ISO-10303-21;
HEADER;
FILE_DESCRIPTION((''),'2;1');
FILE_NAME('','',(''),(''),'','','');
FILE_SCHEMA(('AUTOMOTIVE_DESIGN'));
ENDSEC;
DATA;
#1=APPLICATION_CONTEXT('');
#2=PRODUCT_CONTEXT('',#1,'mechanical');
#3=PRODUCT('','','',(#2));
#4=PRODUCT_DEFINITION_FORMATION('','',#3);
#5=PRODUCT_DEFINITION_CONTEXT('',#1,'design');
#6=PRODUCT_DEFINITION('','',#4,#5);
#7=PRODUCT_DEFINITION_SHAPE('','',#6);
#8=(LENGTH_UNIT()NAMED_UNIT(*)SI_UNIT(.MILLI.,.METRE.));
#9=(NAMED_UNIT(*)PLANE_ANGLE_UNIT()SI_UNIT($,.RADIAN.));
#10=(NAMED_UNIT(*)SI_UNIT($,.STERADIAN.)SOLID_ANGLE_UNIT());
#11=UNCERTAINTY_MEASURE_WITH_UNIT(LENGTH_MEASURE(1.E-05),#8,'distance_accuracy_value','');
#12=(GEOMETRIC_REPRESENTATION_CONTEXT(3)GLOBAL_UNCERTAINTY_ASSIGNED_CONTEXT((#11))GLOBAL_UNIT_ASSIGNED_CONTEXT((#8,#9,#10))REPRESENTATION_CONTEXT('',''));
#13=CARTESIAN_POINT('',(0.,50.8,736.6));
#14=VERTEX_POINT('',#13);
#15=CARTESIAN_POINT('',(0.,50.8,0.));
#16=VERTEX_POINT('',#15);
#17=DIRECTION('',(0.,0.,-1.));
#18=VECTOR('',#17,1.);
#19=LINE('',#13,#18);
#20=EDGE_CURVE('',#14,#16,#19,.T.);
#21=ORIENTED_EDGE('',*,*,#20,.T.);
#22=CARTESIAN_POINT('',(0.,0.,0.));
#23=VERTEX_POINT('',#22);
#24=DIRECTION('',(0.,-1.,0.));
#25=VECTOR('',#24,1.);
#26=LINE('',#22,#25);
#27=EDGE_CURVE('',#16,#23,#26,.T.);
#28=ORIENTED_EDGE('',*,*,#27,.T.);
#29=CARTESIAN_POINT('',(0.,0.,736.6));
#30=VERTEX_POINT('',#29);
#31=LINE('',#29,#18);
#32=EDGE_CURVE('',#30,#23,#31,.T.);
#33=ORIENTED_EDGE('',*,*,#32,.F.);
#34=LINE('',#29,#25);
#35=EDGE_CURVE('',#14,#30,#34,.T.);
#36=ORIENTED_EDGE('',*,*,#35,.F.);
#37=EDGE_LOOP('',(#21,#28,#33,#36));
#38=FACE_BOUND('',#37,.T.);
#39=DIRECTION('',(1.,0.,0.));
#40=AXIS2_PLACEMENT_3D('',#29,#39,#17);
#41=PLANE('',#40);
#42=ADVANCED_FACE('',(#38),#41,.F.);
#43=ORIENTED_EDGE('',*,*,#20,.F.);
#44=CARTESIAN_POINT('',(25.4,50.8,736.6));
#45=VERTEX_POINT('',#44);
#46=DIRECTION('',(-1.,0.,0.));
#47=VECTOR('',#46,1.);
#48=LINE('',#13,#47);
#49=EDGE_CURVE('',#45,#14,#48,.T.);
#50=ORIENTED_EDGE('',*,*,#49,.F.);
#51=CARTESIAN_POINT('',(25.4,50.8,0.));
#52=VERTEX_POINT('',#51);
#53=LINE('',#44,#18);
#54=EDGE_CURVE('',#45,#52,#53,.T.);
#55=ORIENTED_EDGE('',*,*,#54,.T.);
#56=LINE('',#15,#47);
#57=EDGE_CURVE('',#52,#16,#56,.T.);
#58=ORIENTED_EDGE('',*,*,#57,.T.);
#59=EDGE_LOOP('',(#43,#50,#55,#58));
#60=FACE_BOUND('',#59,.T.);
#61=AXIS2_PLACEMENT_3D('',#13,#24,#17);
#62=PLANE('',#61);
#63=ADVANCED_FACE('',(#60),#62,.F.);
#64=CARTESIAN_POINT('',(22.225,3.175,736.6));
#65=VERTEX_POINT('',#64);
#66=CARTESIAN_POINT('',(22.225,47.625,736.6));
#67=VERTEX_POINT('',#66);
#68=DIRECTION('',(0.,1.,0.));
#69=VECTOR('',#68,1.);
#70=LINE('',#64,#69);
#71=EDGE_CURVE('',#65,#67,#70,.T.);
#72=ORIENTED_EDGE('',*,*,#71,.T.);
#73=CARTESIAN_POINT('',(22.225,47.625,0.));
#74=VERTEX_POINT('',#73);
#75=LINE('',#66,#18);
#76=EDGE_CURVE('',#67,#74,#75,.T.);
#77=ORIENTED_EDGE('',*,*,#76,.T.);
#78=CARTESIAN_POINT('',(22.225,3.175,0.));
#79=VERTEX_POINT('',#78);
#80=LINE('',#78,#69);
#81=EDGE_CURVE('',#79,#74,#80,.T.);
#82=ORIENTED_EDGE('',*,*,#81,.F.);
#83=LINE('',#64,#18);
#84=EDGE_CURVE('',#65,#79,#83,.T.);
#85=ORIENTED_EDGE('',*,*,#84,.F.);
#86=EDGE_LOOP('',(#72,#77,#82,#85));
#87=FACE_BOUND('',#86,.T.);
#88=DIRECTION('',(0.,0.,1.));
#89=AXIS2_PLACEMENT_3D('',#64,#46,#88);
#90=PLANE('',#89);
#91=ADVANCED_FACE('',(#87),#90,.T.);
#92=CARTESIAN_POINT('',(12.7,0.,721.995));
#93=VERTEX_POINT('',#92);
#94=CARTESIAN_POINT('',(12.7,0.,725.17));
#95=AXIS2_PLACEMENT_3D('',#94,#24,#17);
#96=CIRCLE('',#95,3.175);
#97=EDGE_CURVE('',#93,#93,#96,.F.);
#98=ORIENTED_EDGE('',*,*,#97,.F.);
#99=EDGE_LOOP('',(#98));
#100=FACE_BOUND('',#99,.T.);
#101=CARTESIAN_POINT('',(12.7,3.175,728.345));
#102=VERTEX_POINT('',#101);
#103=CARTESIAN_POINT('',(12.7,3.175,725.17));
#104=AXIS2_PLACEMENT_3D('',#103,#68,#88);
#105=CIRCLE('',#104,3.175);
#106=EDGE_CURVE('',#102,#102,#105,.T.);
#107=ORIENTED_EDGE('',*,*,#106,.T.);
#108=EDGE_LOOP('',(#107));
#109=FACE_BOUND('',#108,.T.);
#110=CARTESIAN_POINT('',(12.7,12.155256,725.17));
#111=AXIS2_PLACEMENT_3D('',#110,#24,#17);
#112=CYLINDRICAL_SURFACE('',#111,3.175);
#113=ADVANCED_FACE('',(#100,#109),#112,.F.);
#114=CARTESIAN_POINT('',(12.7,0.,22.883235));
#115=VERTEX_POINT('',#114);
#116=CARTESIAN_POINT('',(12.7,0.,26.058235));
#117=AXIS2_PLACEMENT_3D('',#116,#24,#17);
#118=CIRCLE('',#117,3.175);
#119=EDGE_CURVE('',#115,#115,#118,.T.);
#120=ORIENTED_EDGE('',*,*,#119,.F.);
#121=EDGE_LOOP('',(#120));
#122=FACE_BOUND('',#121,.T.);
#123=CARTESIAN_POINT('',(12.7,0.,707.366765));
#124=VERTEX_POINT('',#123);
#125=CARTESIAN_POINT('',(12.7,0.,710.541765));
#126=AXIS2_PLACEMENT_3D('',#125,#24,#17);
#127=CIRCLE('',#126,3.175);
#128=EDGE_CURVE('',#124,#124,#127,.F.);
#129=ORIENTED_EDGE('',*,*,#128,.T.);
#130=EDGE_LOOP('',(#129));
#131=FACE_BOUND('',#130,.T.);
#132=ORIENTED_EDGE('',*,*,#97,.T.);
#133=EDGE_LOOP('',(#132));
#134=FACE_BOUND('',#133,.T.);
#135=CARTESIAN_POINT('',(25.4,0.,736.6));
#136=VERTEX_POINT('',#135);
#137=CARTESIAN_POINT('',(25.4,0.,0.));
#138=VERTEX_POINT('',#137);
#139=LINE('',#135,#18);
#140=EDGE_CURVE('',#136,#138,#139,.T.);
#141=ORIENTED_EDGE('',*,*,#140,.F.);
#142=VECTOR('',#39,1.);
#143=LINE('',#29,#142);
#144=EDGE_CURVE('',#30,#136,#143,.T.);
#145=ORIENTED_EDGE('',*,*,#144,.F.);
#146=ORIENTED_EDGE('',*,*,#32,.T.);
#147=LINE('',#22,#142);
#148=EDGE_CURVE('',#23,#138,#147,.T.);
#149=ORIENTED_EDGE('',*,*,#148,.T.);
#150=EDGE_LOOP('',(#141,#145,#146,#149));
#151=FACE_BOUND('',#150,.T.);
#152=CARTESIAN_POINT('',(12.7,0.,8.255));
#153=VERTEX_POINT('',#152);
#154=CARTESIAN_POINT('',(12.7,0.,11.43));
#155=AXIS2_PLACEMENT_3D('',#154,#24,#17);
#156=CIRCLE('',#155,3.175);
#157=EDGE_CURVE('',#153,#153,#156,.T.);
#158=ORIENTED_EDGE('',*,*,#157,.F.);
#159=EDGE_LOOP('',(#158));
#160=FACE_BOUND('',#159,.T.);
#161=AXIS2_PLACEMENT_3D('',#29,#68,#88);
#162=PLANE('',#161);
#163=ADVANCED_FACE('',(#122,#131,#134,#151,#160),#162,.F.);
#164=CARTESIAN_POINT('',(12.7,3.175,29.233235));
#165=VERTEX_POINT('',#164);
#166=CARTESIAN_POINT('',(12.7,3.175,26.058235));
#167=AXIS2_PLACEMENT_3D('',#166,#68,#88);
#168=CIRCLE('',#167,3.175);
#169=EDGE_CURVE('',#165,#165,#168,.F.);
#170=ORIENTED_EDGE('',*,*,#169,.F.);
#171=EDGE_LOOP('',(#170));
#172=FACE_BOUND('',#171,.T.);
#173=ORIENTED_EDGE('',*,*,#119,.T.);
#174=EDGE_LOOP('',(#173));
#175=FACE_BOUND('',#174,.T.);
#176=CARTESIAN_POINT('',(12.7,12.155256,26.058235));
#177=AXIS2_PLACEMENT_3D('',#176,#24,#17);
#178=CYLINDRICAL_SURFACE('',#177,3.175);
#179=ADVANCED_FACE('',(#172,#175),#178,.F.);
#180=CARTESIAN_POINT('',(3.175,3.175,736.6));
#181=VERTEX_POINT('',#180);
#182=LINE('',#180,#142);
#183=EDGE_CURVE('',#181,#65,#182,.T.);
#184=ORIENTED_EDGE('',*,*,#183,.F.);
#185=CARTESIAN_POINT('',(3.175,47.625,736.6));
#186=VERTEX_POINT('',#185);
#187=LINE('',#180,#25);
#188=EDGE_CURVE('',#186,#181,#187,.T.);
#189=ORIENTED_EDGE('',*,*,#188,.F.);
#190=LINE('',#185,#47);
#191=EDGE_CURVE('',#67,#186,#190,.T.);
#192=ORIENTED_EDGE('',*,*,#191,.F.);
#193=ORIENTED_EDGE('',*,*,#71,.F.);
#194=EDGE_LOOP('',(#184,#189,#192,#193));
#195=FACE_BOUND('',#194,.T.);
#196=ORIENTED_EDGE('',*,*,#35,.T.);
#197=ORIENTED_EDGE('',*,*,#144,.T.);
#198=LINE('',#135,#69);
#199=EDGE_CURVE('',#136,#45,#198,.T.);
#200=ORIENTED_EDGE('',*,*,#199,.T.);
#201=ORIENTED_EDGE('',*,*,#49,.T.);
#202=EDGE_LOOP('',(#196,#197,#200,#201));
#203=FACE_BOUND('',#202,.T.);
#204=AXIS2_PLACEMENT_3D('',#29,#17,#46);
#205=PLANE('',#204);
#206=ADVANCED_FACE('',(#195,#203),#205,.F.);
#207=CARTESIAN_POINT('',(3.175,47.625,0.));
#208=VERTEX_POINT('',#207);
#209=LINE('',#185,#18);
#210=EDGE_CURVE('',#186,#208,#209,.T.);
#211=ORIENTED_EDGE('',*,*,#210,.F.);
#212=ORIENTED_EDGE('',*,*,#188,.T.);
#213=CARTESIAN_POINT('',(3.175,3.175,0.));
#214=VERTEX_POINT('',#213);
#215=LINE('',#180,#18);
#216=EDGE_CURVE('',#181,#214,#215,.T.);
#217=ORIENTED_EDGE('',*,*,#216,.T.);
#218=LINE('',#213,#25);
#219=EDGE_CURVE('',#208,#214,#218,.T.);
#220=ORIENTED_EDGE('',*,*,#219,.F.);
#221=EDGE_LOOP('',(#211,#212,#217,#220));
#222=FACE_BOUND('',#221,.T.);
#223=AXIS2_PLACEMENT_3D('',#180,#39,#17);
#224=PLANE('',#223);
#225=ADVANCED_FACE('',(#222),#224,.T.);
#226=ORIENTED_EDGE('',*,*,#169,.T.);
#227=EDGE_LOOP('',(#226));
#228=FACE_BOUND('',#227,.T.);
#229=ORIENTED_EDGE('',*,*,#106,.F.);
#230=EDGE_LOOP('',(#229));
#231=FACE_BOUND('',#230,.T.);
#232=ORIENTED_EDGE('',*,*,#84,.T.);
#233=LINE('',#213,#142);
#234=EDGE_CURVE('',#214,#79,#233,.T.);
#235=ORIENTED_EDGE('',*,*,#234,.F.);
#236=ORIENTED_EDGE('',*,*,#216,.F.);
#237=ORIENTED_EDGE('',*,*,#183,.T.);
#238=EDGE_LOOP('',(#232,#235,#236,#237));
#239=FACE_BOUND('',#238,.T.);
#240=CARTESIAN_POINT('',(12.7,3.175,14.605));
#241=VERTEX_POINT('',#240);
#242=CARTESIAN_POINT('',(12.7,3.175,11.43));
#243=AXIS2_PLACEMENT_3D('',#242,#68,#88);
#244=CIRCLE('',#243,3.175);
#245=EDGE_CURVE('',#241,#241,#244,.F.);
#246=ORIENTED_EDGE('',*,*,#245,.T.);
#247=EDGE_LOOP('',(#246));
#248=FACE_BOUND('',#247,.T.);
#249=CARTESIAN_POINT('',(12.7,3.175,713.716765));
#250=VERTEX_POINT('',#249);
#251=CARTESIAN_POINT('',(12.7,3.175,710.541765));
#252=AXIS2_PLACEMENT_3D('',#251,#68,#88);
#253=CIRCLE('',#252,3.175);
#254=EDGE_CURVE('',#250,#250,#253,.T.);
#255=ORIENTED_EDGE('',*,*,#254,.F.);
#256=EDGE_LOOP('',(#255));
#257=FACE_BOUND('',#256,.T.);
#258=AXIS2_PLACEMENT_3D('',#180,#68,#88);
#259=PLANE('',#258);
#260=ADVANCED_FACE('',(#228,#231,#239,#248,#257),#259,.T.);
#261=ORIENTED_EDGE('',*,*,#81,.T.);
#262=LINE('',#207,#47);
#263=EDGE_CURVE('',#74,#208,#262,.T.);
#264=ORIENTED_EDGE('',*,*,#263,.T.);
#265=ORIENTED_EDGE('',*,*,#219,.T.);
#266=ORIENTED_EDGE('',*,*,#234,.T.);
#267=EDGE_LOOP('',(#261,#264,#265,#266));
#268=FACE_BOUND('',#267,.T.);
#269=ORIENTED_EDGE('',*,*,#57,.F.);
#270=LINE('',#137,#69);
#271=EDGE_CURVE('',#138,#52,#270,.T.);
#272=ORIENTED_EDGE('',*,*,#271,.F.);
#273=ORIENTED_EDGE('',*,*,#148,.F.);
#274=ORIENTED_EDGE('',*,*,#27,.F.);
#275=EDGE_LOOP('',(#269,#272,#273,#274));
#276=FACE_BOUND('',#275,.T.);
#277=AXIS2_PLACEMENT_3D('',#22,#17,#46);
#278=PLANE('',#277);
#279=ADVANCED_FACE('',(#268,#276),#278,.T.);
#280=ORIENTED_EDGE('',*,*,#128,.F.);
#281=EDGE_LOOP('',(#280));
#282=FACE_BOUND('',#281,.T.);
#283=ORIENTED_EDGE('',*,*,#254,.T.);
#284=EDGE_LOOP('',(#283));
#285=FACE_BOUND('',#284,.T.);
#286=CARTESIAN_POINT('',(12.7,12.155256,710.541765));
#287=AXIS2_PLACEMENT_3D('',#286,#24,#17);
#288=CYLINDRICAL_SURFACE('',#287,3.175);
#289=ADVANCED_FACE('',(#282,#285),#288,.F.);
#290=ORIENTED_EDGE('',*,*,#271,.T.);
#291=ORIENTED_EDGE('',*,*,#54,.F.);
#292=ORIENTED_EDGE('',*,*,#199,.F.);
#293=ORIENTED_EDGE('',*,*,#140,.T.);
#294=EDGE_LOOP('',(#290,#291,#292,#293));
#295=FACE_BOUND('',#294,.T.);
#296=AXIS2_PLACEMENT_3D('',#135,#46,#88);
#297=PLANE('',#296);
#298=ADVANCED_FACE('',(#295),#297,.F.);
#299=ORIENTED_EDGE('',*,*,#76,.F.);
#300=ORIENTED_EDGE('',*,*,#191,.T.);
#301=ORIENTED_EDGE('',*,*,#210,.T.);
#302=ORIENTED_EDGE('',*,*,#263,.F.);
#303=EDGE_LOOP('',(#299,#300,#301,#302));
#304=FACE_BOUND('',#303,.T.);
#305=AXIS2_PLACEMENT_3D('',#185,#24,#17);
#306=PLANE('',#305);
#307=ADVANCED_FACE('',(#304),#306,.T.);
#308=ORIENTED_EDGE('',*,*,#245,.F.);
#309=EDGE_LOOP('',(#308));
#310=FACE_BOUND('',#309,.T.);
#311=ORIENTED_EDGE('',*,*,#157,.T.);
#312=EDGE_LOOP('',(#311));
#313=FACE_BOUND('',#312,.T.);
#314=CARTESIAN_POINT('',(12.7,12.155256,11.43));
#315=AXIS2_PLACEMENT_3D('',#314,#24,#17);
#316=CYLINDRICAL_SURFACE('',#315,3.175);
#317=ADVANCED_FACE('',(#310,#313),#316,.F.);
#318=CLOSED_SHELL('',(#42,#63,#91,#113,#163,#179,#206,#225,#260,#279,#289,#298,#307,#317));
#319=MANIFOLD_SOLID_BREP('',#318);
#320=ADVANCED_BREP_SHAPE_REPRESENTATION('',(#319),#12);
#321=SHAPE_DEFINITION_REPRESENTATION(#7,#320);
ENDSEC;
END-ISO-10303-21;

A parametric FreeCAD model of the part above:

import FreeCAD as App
import Part
import Sketcher
from FreeCAD import Vector
Q = App.Units.Quantity


def add_polygon(sketch, points):
    """Adds a closed chain of lines whose ends are joined by coincident constraints."""
    first, n = sketch.GeometryCount, len(points)
    for a, b in zip(points, points[1:] + points[:1]):
        sketch.addGeometry(Part.LineSegment(App.Vector(*a, 0), App.Vector(*b, 0)), False)
    for i in range(n):
        sketch.addConstraint(Sketcher.Constraint("Coincident", first + i, 2, first + (i + 1) % n, 1))

doc = App.newDocument("Part")
body = doc.addObject("PartDesign::Body", "Body")

sketch1 = body.newObject("Sketcher::SketchObject", "Sketch")
sketch1.AttachmentSupport = (doc.getObject("XY_Plane"), [""])
sketch1.MapMode = "FlatFace"
add_polygon(sketch1, [(0, 50.8), (0, 0), (25.4, 0), (25.4, 50.8)])
add_polygon(sketch1, [(22.225, 3.175), (3.175, 3.175), (3.175, 47.625), (22.225, 47.625)])
sketch1.addConstraint(Sketcher.Constraint("Vertical", 0))
sketch1.addConstraint(Sketcher.Constraint("Horizontal", 1))
sketch1.addConstraint(Sketcher.Constraint("Vertical", 2))
sketch1.addConstraint(Sketcher.Constraint("Horizontal", 3))
sketch1.addConstraint(Sketcher.Constraint("Horizontal", 4))
sketch1.addConstraint(Sketcher.Constraint("Vertical", 5))
sketch1.addConstraint(Sketcher.Constraint("Horizontal", 6))
sketch1.addConstraint(Sketcher.Constraint("Vertical", 7))
sketch1.addConstraint(Sketcher.Constraint("Coincident", 0, 2, -1, 1))
sketch1.addConstraint(Sketcher.Constraint("DistanceX", 1, 1, 1, 2, Q("1 in")))
sketch1.addConstraint(Sketcher.Constraint("DistanceY", 0, 2, 0, 1, Q("2 in")))
sketch1.addConstraint(Sketcher.Constraint("DistanceX", 4, 2, 4, 1, Q("0.75 in")))
sketch1.addConstraint(Sketcher.Constraint("DistanceY", 5, 1, 5, 2, Q("1.75 in")))
sketch1.addConstraint(Sketcher.Constraint("DistanceX", -1, 1, 4, 2, Q("0.125 in")))
sketch1.addConstraint(Sketcher.Constraint("DistanceY", -1, 1, 4, 2, Q("0.125 in")))
pad1 = body.newObject("PartDesign::Pad", "Pad")
pad1.Profile = sketch1
pad1.Length = Q("29 in")

sketch2 = body.newObject("Sketcher::SketchObject", "Sketch001")
sketch2.AttachmentSupport = (doc.getObject("XZ_Plane"), [""])
sketch2.MapMode = "FlatFace"
sketch2.addGeometry(Part.Circle(Vector(12.7, 710.541765, 0), Vector(0, 0, 1), 3.175), False)
sketch2.addGeometry(Part.Circle(Vector(12.7, 725.17, 0), Vector(0, 0, 1), 3.175), False)
sketch2.addGeometry(Part.Circle(Vector(12.7, 11.43, 0), Vector(0, 0, 1), 3.175), False)
sketch2.addGeometry(Part.Circle(Vector(12.7, 26.058235, 0), Vector(0, 0, 1), 3.175), False)
sketch2.addConstraint(Sketcher.Constraint("Equal", 0, 1))
sketch2.addConstraint(Sketcher.Constraint("Equal", 1, 2))
sketch2.addConstraint(Sketcher.Constraint("Equal", 2, 3))
sketch2.addConstraint(Sketcher.Constraint("Vertical", 0, 3, 1, 3))
sketch2.addConstraint(Sketcher.Constraint("Vertical", 1, 3, 2, 3))
sketch2.addConstraint(Sketcher.Constraint("Vertical", 2, 3, 3, 3))
sketch2.addConstraint(Sketcher.Constraint("Diameter", 0, Q("0.25 in")))
sketch2.addConstraint(Sketcher.Constraint("DistanceX", -1, 1, 0, 3, Q("0.5 in")))
sketch2.addConstraint(Sketcher.Constraint("DistanceY", 2, 3, 1, 3, Q("28.1 in")))
sketch2.addConstraint(Sketcher.Constraint("DistanceY", -1, 1, 1, 3, Q("28.55 in")))
sketch2.addConstraint(Sketcher.Constraint("DistanceY", 3, 3, 0, 3, Q("684.483529 mm")))
sketch2.addConstraint(Sketcher.Constraint("DistanceY", -1, 1, 0, 3, Q("710.541765 mm")))
pocket1 = body.newObject("PartDesign::Pocket", "Pocket")
pocket1.Profile = sketch2
pocket1.Length = Q("0.125 in")

doc.recompute()
